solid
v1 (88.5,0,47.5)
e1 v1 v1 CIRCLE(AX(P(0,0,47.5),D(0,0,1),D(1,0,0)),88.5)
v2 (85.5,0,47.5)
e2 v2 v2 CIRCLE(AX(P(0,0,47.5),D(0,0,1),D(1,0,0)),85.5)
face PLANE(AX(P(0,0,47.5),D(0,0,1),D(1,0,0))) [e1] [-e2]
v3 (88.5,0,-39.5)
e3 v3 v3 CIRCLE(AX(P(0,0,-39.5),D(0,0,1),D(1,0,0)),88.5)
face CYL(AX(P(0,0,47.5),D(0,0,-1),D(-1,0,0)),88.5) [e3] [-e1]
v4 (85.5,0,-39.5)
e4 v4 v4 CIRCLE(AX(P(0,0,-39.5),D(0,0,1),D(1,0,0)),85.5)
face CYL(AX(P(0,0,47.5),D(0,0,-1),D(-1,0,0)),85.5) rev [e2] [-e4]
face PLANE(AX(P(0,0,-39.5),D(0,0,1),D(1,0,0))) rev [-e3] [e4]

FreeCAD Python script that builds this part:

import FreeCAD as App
import Part
import Sketcher
from FreeCAD import Vector
Q = App.Units.Quantity

doc = App.newDocument("Part")
body = doc.addObject("PartDesign::Body", "Body")

# Sketch on XY plane
sketch1 = body.newObject("Sketcher::SketchObject", "Sketch")
sketch1.AttachmentSupport = (doc.getObject("XY_Plane"), [""])
sketch1.MapMode = "FlatFace"
sketch1.AttachmentOffset = App.Placement(Vector(0, 0, -39.5), App.Rotation())
sketch1.addGeometry(Part.Circle(Vector(0, 0, 0), Vector(0, 0, 1), 88.5), False)
sketch1.addGeometry(Part.Circle(Vector(0, 0, 0), Vector(0, 0, 1), 85.5), False)
sketch1.addConstraint(Sketcher.Constraint("Coincident", 0, 3, -1, 1))
sketch1.addConstraint(Sketcher.Constraint("Coincident", 1, 3, -1, 1))
sketch1.addConstraint(Sketcher.Constraint("Diameter", 0, Q("177 mm")))
sketch1.addConstraint(Sketcher.Constraint("Diameter", 1, Q("171 mm")))
pad1 = body.newObject("PartDesign::Pad", "Pad")
pad1.Profile = sketch1
pad1.Length = 87

doc.recompute()
